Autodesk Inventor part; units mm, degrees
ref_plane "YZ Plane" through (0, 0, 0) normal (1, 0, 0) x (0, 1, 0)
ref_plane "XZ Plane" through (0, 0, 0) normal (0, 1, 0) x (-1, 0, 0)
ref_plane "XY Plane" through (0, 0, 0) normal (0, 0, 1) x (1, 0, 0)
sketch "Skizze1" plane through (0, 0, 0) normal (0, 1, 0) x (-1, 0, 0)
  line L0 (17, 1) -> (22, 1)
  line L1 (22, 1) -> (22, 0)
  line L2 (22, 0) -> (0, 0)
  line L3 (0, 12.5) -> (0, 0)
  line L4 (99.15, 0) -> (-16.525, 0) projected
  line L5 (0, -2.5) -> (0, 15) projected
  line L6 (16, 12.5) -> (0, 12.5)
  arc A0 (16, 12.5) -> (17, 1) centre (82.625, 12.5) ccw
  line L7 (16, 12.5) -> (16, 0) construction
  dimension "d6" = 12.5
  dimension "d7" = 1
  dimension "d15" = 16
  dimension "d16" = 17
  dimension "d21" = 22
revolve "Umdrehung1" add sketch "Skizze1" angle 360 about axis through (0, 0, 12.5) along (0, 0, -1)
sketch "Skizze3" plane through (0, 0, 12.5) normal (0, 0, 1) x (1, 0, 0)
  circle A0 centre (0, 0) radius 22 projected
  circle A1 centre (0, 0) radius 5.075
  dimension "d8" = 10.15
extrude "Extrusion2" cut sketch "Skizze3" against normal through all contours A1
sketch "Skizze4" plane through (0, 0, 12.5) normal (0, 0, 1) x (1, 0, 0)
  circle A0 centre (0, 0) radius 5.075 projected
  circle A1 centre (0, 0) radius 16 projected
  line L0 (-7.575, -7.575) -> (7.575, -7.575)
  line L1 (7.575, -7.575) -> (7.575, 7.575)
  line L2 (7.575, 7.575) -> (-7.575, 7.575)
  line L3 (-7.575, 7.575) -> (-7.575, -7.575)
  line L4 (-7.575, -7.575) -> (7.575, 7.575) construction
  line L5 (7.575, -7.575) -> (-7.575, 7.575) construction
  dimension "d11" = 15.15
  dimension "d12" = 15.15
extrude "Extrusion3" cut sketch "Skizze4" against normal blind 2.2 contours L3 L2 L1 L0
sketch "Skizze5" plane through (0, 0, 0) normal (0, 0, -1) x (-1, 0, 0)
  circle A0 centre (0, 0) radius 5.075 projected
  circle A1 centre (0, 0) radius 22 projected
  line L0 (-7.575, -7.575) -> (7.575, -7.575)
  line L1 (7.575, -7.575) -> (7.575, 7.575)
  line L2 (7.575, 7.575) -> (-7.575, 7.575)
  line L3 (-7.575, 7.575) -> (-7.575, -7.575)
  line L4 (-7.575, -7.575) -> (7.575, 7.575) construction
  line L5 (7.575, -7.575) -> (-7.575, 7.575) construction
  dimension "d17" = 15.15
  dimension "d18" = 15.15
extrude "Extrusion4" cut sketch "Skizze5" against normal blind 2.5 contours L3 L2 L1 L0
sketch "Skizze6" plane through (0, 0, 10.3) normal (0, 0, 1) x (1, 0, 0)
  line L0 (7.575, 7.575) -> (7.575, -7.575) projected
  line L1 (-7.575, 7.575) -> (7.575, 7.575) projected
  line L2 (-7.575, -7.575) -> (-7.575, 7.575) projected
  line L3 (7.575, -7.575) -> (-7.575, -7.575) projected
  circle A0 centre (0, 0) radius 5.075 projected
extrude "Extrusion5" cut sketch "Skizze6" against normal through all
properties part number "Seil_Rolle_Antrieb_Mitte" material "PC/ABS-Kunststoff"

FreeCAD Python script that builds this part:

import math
import FreeCAD as App
import Part
import Sketcher
from FreeCAD import Vector


def add_polygon(sketch, points):
    """Adds a closed chain of lines whose ends are joined by coincident constraints."""
    first, n = sketch.GeometryCount, len(points)
    for a, b in zip(points, points[1:] + points[:1]):
        sketch.addGeometry(Part.LineSegment(App.Vector(*a, 0), App.Vector(*b, 0)), False)
    for i in range(n):
        sketch.addConstraint(Sketcher.Constraint("Coincident", first + i, 2, first + (i + 1) % n, 1))

doc = App.newDocument("Part")
params = doc.addObject("Spreadsheet::Sheet", "Params")
for row, (alias, value) in enumerate([
    ("sketch1_width", "16 mm"),
    ("sketch1_width2", "22 mm"),
    ("sketch1_height", "1 mm"),
    ("sketch1_height2", "12.5 mm"),
    ("revolution_angle", "360 deg"),
    ("sketch2_diameter", "10.15 mm"),
    ("sketch3_width", "15.15 mm"),
    ("sketch3_diameter", "10.15 mm"),
    ("pocket2_length", "2.2 mm"),
    ("sketch4_width", "15.15 mm"),
    ("sketch4_diameter", "10.15 mm"),
    ("pocket3_length", "2.5 mm"),
    ("sketch5_diameter", "10.15 mm"),
    ("sketch5_width", "15.15 mm"),
], start=1):
    params.set(f"A{row}", alias)
    params.set(f"B{row}", "=" + value)
    params.setAlias(f"B{row}", alias)

body = doc.addObject("PartDesign::Body", "Body")

sketch1 = body.newObject("Sketcher::SketchObject", "Sketch")
sketch1.AttachmentSupport = (doc.getObject("XZ_Plane"), [""])
sketch1.MapMode = "FlatFace"
sketch1.addGeometry([
    Part.LineSegment(Vector(-22, 1, 0), Vector(-17, 1, 0)),
    Part.ArcOfCircle(Part.Circle(Vector(-82.6, 12.5, 0), Vector(0, 0, 1), 66.6), math.radians(-9.94), math.radians(0)),
    Part.LineSegment(Vector(-16, 12.5, 0), Vector(0, 12.5, 0)),
    Part.LineSegment(Vector(0, 12.5, 0), Vector(0, 0, 0)),
    Part.LineSegment(Vector(0, 0, 0), Vector(-22, 0, 0)),
    Part.LineSegment(Vector(-22, 0, 0), Vector(-22, 1, 0)),
], False)
sketch1.addConstraint([
    Sketcher.Constraint("Coincident", 0, 2, 1, 1),
    Sketcher.Constraint("Coincident", 1, 2, 2, 1),
    Sketcher.Constraint("Coincident", 2, 2, 3, 1),
    Sketcher.Constraint("Coincident", 3, 2, 4, 1),
    Sketcher.Constraint("Coincident", 4, 2, 5, 1),
    Sketcher.Constraint("Coincident", 5, 2, 0, 1),
    Sketcher.Constraint("Horizontal", 0),
    Sketcher.Constraint("Horizontal", 2),
    Sketcher.Constraint("Vertical", 3),
    Sketcher.Constraint("Horizontal", 4),
    Sketcher.Constraint("Vertical", 5),
    Sketcher.Constraint("Coincident", 3, 2, -1, 1),
    Sketcher.Constraint("DistanceX", 2, 1, 2, 2, 16.0),
    Sketcher.Constraint("DistanceX", 4, 2, 4, 1, 22.0),
    Sketcher.Constraint("DistanceY", 5, 1, 5, 2, 1.0),
    Sketcher.Constraint("DistanceY", 3, 2, 3, 1, 12.5),
    Sketcher.Constraint("DistanceX", 0, 2, -1, 1, 17.0),
    Sketcher.Constraint("DistanceY", -1, 1, 1, 3, 12.5),
])
sketch1.setExpression("Constraints[12]", "Params.sketch1_width")
sketch1.setExpression("Constraints[13]", "Params.sketch1_width2")
sketch1.setExpression("Constraints[14]", "Params.sketch1_height")
sketch1.setExpression("Constraints[15]", "Params.sketch1_height2")
revolution = body.newObject("PartDesign::Revolution", "Revolution")
revolution.Profile = sketch1
revolution.ReferenceAxis = (sketch1, ["V_Axis"])
revolution.setExpression("Angle", "Params.revolution_angle")

sketch2 = body.newObject("Sketcher::SketchObject", "Sketch001")
sketch2.AttachmentSupport = (doc.getObject("XY_Plane"), [""])
sketch2.MapMode = "FlatFace"
sketch2.AttachmentOffset = App.Placement(Vector(0, 0, 12.5), App.Rotation())
sketch2.addGeometry(Part.Circle(Vector(0, 0, 0), Vector(0, 0, 1), 5), False)
sketch2.addConstraint([
    Sketcher.Constraint("Coincident", 0, 3, -1, 1),
    Sketcher.Constraint("Diameter", 0, 10.15),
])
sketch2.setExpression("Constraints[1]", "Params.sketch2_diameter")
pocket1 = body.newObject("PartDesign::Pocket", "Pocket")
pocket1.Profile = sketch2
pocket1.Type = "ThroughAll"

sketch3 = body.newObject("Sketcher::SketchObject", "Sketch002")
sketch3.AttachmentSupport = (doc.getObject("XY_Plane"), [""])
sketch3.MapMode = "FlatFace"
sketch3.AttachmentOffset = App.Placement(Vector(0, 0, 12.5), App.Rotation())
add_polygon(sketch3, [(-8, 8), (-8, -8), (8, -8), (8, 8)])
sketch3.addGeometry(Part.Circle(Vector(0, 0, 0), Vector(0, 0, 1), 5), False)
sketch3.addConstraint([
    Sketcher.Constraint("Vertical", 0),
    Sketcher.Constraint("Horizontal", 1),
    Sketcher.Constraint("Vertical", 2),
    Sketcher.Constraint("Horizontal", 3),
    Sketcher.Constraint("Coincident", 4, 3, -1, 1),
    Sketcher.Constraint("Symmetric", 0, 2, 2, 2, -1, 1),
    Sketcher.Constraint("Equal", 3, 0),
    Sketcher.Constraint("DistanceX", 1, 1, 1, 2, 15.15),
    Sketcher.Constraint("Diameter", 4, 10.15),
])
sketch3.setExpression("Constraints[11]", "Params.sketch3_width")
sketch3.setExpression("Constraints[12]", "Params.sketch3_diameter")
pocket2 = body.newObject("PartDesign::Pocket", "Pocket001")
pocket2.Profile = sketch3
pocket2.setExpression("Length", "Params.pocket2_length")

sketch4 = body.newObject("Sketcher::SketchObject", "Sketch003")
sketch4.AttachmentSupport = (doc.getObject("XY_Plane"), [""])
sketch4.MapMode = "FlatFace"
add_polygon(sketch4, [(8, 8), (8, -8), (-8, -8), (-8, 8)])
sketch4.addGeometry(Part.Circle(Vector(0, 0, 0), Vector(0, 0, 1), 5), False)
sketch4.addConstraint([
    Sketcher.Constraint("Vertical", 0),
    Sketcher.Constraint("Horizontal", 1),
    Sketcher.Constraint("Vertical", 2),
    Sketcher.Constraint("Horizontal", 3),
    Sketcher.Constraint("Coincident", 4, 3, -1, 1),
    Sketcher.Constraint("Symmetric", 0, 2, 2, 2, -1, 1),
    Sketcher.Constraint("Equal", 3, 0),
    Sketcher.Constraint("DistanceX", 1, 2, 1, 1, 15.15),
    Sketcher.Constraint("Diameter", 4, 10.15),
])
sketch4.setExpression("Constraints[11]", "Params.sketch4_width")
sketch4.setExpression("Constraints[12]", "Params.sketch4_diameter")
pocket3 = body.newObject("PartDesign::Pocket", "Pocket002")
pocket3.Profile = sketch4
pocket3.setExpression("Length", "Params.pocket3_length")
pocket3.Reversed = True

sketch5 = body.newObject("Sketcher::SketchObject", "Sketch004")
sketch5.AttachmentSupport = (doc.getObject("XY_Plane"), [""])
sketch5.MapMode = "FlatFace"
sketch5.AttachmentOffset = App.Placement(Vector(0, 0, 10.3), App.Rotation())
add_polygon(sketch5, [(8, -8), (8, 8), (-8, 8), (-8, -8)])
sketch5.addGeometry(Part.Circle(Vector(0, 0, 0), Vector(0, 0, 1), 5), False)
sketch5.addConstraint([
    Sketcher.Constraint("Vertical", 0),
    Sketcher.Constraint("Horizontal", 1),
    Sketcher.Constraint("Vertical", 2),
    Sketcher.Constraint("Horizontal", 3),
    Sketcher.Constraint("Coincident", 4, 3, -1, 1),
    Sketcher.Constraint("Symmetric", 0, 2, 2, 2, -1, 1),
    Sketcher.Constraint("Equal", 3, 0),
    Sketcher.Constraint("Diameter", 4, 10.15),
    Sketcher.Constraint("DistanceX", 1, 2, 1, 1, 15.15),
])
sketch5.setExpression("Constraints[11]", "Params.sketch5_diameter")
sketch5.setExpression("Constraints[12]", "Params.sketch5_width")
pocket4 = body.newObject("PartDesign::Pocket", "Pocket003")
pocket4.Profile = sketch5
pocket4.Type = "ThroughAll"

doc.recompute()
